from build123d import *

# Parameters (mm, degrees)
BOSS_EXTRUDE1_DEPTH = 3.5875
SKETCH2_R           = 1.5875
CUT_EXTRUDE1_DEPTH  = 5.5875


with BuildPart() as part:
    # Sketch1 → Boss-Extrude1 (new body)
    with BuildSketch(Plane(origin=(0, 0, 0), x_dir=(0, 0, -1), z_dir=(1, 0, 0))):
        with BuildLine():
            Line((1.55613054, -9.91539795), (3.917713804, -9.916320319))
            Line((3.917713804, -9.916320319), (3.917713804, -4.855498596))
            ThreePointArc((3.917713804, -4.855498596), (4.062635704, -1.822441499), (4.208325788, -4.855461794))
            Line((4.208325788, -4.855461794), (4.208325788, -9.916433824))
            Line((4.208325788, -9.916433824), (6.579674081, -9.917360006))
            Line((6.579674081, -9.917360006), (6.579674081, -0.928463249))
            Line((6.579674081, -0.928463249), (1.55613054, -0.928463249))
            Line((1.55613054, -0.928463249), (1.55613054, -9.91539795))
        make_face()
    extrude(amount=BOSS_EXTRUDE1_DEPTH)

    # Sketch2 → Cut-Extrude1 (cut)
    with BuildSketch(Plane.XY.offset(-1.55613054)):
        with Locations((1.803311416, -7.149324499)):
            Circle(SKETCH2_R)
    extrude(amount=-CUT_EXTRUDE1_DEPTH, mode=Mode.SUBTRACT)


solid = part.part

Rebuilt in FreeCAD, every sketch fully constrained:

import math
import FreeCAD as App
import Part
import Sketcher
Q = App.Units.Quantity

doc = App.newDocument("Part")
body = doc.addObject("PartDesign::Body", "Body")

sketch1 = doc.addObject("Sketcher::SketchObject", "Sketch")
body.addObject(sketch1)
sketch1.AttachmentSupport = (doc.YZ_Plane, [""])
sketch1.MapMode = "FlatFace"
sketch1.addGeometry(Part.LineSegment(App.Vector(-9.92, -1.56, 0), App.Vector(-9.92, -3.92, 0)), False)
sketch1.addGeometry(Part.LineSegment(App.Vector(-9.92, -3.92, 0), App.Vector(-4.86, -3.92, 0)), False)
sketch1.addGeometry(Part.ArcOfCircle(Part.Circle(App.Vector(-3.34, -4.06, 0), App.Vector(0, 0, 1), 1.52), math.radians(-175), math.radians(175)), False)
sketch1.addGeometry(Part.LineSegment(App.Vector(-4.86, -4.21, 0), App.Vector(-9.92, -4.21, 0)), False)
sketch1.addGeometry(Part.LineSegment(App.Vector(-9.92, -4.21, 0), App.Vector(-9.92, -6.58, 0)), False)
sketch1.addGeometry(Part.LineSegment(App.Vector(-9.92, -6.58, 0), App.Vector(-0.93, -6.58, 0)), False)
sketch1.addGeometry(Part.LineSegment(App.Vector(-0.93, -6.58, 0), App.Vector(-0.93, -1.56, 0)), False)
sketch1.addGeometry(Part.LineSegment(App.Vector(-0.93, -1.56, 0), App.Vector(-9.92, -1.56, 0)), False)
sketch1.addConstraint(Sketcher.Constraint("Coincident", 0, 2, 1, 1))
sketch1.addConstraint(Sketcher.Constraint("Coincident", 1, 2, 2, 2))
sketch1.addConstraint(Sketcher.Constraint("Coincident", 2, 1, 3, 1))
sketch1.addConstraint(Sketcher.Constraint("Coincident", 3, 2, 4, 1))
sketch1.addConstraint(Sketcher.Constraint("Coincident", 4, 2, 5, 1))
sketch1.addConstraint(Sketcher.Constraint("Coincident", 5, 2, 6, 1))
sketch1.addConstraint(Sketcher.Constraint("Coincident", 6, 2, 7, 1))
sketch1.addConstraint(Sketcher.Constraint("Coincident", 7, 2, 0, 1))
sketch1.addConstraint(Sketcher.Constraint("Horizontal", 1))
sketch1.addConstraint(Sketcher.Constraint("Horizontal", 3))
sketch1.addConstraint(Sketcher.Constraint("Horizontal", 5))
sketch1.addConstraint(Sketcher.Constraint("Vertical", 6))
sketch1.addConstraint(Sketcher.Constraint("Horizontal", 7))
sketch1.addConstraint(Sketcher.Constraint("Parallel", 0, 4))
sketch1.addConstraint(Sketcher.Constraint("Radius", 2, Q("1.52 mm")))
sketch1.addConstraint(Sketcher.Constraint("DistanceX", 1, 1, 1, 2, Q("5.060822 mm")))
sketch1.addConstraint(Sketcher.Constraint("DistanceX", 1, 2, -1, 1, Q("4.855499 mm")))
sketch1.addConstraint(Sketcher.Constraint("DistanceX", 4, 2, 2, 1, Q("5.061898 mm")))
sketch1.addConstraint(Sketcher.Constraint("DistanceX", 2, 1, 5, 2, Q("3.926999 mm")))
sketch1.addConstraint(Sketcher.Constraint("DistanceX", 7, 2, 1, 2, Q("5.059899 mm")))
sketch1.addConstraint(Sketcher.Constraint("Distance", 4, Q("2.371348 mm")))
sketch1.addConstraint(Sketcher.Constraint("DistanceX", 7, 2, 7, 1, Q("8.986935 mm")))
sketch1.addConstraint(Sketcher.Constraint("DistanceY", 6, 1, 6, 2, Q("5.023544 mm")))
sketch1.addConstraint(Sketcher.Constraint("DistanceX", 2, 3, -1, 1, Q("3.342441 mm")))
sketch1.addConstraint(Sketcher.Constraint("DistanceY", 2, 3, -1, 1, Q("4.062828 mm")))
pad1 = doc.addObject("PartDesign::Pad", "Pad")
body.addObject(pad1)
pad1.Profile = sketch1
pad1.Length = 3.5875

sketch2 = doc.addObject("Sketcher::SketchObject", "Sketch001")
body.addObject(sketch2)
sketch2.AttachmentSupport = (doc.XY_Plane, [""])
sketch2.MapMode = "FlatFace"
sketch2.AttachmentOffset = App.Placement(App.Vector(0, 0, -1.556131), App.Rotation())
sketch2.addGeometry(Part.Circle(App.Vector(1.8, -7.1, 0), App.Vector(0, 0, 1), 1.6), False)
sketch2.addConstraint(Sketcher.Constraint("Diameter", 0, Q("0.125 in")))
sketch2.addConstraint(Sketcher.Constraint("DistanceX", -1, 1, 0, 3, Q("1.803311 mm")))
sketch2.addConstraint(Sketcher.Constraint("DistanceY", 0, 3, -1, 1, Q("7.149324 mm")))
pocket1 = doc.addObject("PartDesign::Pocket", "Pocket")
body.addObject(pocket1)
pocket1.Profile = sketch2
pocket1.Length = 5.5875

doc.recompute()
